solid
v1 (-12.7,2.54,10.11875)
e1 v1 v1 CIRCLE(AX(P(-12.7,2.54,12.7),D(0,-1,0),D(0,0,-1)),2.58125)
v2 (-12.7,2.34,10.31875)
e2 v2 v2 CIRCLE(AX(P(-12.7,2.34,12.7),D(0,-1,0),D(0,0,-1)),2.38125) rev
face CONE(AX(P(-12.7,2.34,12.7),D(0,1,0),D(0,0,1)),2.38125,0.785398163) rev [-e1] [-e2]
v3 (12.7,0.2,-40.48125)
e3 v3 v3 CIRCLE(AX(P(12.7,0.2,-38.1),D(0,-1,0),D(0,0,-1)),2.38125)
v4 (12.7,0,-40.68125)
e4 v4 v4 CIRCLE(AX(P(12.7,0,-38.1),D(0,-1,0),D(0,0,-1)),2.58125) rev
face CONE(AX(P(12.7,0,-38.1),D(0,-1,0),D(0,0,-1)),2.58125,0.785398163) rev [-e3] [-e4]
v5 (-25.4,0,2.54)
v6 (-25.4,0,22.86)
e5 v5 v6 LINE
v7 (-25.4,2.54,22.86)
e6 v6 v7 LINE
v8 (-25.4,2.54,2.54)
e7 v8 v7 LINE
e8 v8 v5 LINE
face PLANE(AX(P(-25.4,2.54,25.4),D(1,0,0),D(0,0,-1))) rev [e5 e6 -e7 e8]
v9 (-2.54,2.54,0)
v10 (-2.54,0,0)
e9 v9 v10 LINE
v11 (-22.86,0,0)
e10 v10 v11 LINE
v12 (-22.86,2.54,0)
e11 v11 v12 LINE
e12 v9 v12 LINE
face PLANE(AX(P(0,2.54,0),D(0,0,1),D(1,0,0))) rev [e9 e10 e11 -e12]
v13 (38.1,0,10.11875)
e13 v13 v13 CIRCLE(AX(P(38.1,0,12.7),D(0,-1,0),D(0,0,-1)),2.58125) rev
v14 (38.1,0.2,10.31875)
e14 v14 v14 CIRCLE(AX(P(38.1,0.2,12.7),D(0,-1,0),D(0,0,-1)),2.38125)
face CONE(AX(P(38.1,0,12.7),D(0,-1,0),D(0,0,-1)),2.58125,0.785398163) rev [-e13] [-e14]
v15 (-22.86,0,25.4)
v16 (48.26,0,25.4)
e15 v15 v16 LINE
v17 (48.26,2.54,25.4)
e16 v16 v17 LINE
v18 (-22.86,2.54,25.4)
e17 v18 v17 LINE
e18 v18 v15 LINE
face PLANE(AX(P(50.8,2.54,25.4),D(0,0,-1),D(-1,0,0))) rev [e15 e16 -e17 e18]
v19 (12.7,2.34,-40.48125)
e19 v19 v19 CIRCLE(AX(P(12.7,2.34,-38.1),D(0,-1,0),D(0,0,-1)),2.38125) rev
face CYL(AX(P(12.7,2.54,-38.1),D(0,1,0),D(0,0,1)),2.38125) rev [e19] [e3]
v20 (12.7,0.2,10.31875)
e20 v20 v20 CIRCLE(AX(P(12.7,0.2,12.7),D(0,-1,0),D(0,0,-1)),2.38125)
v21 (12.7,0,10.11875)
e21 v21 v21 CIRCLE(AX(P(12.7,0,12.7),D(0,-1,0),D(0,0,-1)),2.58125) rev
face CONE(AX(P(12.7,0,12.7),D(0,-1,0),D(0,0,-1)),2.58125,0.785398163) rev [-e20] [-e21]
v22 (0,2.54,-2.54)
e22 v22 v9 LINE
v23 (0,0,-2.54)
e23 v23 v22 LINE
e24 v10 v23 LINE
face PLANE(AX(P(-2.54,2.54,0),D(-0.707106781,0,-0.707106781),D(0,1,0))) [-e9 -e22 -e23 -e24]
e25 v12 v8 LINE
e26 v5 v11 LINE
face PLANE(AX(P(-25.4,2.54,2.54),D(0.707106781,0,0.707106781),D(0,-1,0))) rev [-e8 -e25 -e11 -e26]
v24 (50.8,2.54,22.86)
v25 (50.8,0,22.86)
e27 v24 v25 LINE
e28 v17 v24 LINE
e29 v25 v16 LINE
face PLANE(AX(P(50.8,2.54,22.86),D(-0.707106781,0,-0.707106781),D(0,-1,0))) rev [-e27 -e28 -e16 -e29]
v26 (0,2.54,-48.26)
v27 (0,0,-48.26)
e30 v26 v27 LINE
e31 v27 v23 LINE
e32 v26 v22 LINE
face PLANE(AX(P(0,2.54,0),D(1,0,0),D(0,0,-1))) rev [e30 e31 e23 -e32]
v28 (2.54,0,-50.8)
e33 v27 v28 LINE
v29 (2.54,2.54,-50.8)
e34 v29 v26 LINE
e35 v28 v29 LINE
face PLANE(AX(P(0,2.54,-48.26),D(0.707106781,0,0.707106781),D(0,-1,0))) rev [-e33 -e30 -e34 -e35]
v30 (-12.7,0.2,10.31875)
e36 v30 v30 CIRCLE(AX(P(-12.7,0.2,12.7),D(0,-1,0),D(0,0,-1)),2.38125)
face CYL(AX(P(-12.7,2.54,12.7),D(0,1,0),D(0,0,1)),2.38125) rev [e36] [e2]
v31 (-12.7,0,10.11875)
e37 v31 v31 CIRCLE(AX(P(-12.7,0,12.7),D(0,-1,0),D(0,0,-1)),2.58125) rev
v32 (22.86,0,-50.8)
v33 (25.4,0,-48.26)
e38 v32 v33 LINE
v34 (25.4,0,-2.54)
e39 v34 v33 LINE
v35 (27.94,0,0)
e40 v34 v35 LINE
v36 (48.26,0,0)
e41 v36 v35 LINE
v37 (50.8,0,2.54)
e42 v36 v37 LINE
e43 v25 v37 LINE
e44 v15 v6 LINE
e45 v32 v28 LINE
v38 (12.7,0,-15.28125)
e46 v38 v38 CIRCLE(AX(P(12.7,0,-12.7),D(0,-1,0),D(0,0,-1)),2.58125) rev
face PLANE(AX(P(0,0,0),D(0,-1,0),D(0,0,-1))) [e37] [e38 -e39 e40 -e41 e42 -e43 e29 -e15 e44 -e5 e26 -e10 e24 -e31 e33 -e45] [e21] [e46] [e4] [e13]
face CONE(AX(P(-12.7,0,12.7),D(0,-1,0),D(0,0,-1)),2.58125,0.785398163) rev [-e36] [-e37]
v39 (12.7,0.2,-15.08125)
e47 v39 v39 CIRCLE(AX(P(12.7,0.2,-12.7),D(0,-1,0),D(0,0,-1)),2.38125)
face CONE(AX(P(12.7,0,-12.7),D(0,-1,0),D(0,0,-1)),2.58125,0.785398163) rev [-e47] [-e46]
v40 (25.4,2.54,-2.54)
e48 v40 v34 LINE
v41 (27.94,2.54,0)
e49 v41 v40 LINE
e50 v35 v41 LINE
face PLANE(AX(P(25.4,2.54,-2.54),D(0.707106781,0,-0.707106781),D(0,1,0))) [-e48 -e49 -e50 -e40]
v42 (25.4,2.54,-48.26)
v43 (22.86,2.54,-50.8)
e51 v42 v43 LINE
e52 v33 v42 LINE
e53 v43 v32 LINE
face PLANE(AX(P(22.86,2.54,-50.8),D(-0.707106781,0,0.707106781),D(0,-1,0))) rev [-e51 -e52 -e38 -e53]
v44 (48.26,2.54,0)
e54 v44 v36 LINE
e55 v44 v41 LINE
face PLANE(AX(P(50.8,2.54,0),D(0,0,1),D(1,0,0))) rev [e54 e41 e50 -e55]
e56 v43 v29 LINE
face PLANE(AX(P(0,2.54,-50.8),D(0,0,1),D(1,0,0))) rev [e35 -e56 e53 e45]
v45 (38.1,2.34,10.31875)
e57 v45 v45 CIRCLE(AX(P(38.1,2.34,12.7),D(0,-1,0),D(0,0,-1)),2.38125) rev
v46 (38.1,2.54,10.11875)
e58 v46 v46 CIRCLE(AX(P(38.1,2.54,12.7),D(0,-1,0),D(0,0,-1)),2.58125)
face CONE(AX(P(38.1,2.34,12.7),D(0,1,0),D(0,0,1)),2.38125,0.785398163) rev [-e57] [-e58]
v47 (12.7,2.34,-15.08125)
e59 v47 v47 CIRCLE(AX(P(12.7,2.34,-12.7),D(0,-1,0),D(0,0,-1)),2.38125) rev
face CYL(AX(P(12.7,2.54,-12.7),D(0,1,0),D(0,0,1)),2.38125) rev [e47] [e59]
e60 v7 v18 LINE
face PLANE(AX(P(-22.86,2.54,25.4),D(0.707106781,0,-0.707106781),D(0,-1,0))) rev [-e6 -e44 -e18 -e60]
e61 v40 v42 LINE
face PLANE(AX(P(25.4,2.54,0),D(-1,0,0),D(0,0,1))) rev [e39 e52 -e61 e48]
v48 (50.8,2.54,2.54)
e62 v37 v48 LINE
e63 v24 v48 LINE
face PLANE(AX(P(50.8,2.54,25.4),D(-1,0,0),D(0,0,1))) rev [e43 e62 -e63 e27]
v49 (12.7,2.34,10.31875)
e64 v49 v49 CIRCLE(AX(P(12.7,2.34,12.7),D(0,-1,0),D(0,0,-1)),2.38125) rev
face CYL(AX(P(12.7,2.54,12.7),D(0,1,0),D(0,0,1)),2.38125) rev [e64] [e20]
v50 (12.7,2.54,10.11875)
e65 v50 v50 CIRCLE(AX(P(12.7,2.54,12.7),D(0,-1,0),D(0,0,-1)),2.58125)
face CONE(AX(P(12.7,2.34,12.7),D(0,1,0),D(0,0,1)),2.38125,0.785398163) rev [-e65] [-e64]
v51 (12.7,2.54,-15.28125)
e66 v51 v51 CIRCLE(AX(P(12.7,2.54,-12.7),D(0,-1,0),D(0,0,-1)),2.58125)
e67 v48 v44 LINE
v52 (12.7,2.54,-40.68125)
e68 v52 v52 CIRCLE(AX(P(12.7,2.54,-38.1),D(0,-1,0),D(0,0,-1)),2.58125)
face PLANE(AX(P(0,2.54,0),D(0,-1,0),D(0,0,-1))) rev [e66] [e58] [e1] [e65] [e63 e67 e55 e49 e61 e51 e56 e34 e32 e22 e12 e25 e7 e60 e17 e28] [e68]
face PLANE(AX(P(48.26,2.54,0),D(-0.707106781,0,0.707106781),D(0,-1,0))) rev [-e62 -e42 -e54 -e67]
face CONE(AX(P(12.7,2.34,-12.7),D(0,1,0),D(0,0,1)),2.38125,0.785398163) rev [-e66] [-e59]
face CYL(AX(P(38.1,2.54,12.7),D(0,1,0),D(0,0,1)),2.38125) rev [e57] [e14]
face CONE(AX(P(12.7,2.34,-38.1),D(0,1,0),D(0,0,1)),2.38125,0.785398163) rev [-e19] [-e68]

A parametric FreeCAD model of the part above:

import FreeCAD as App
import Part
import Sketcher

V = App.Vector
Q = App.Units.Quantity


def edges_at(feature, points):
    """Names of the edges that pass closest to the given points."""
    edges = feature.Shape.Edges
    near = lambda p: min(range(len(edges)), key=lambda i: edges[i].distToShape(Part.Vertex(*p))[0])
    return sorted({f"Edge{near(p) + 1}" for p in points})

doc = App.newDocument("Part")
body = doc.addObject("PartDesign::Body", "Body")

# Sketch on XZ plane
sketch1 = body.newObject("Sketcher::SketchObject", "Sketch")
sketch1.AttachmentSupport = (doc.getObject("XZ_Plane"), [""])
sketch1.MapMode = "FlatFace"
sketch1.addGeometry(Part.LineSegment(V(0, 0, 0), V(-25, 0, 0)), False)
sketch1.addGeometry(Part.LineSegment(V(-25, 0, 0), V(-25, 25, 0)), False)
sketch1.addGeometry(Part.LineSegment(V(-25, 25, 0), V(51, 25, 0)), False)
sketch1.addGeometry(Part.LineSegment(V(51, 25, 0), V(51, 0, 0)), False)
sketch1.addGeometry(Part.LineSegment(V(51, 0, 0), V(25, 0, 0)), False)
sketch1.addGeometry(Part.LineSegment(V(25, 0, 0), V(25, -51, 0)), False)
sketch1.addGeometry(Part.LineSegment(V(25, -51, 0), V(0, -51, 0)), False)
sketch1.addGeometry(Part.LineSegment(V(0, -51, 0), V(0, 0, 0)), False)
sketch1.addConstraint(Sketcher.Constraint("Coincident", 0, 2, 1, 1))
sketch1.addConstraint(Sketcher.Constraint("Coincident", 1, 2, 2, 1))
sketch1.addConstraint(Sketcher.Constraint("Coincident", 2, 2, 3, 1))
sketch1.addConstraint(Sketcher.Constraint("Coincident", 3, 2, 4, 1))
sketch1.addConstraint(Sketcher.Constraint("Coincident", 4, 2, 5, 1))
sketch1.addConstraint(Sketcher.Constraint("Coincident", 5, 2, 6, 1))
sketch1.addConstraint(Sketcher.Constraint("Coincident", 6, 2, 7, 1))
sketch1.addConstraint(Sketcher.Constraint("Coincident", 7, 2, 0, 1))
sketch1.addConstraint(Sketcher.Constraint("Horizontal", 0))
sketch1.addConstraint(Sketcher.Constraint("Vertical", 1))
sketch1.addConstraint(Sketcher.Constraint("Horizontal", 2))
sketch1.addConstraint(Sketcher.Constraint("Vertical", 3))
sketch1.addConstraint(Sketcher.Constraint("Horizontal", 4))
sketch1.addConstraint(Sketcher.Constraint("Vertical", 5))
sketch1.addConstraint(Sketcher.Constraint("Horizontal", 6))
sketch1.addConstraint(Sketcher.Constraint("Vertical", 7))
sketch1.addConstraint(Sketcher.Constraint("Coincident", 7, 2, -1, 1))
sketch1.addConstraint(Sketcher.Constraint("Symmetric", 0, 2, 4, 2, -1, 1))
sketch1.addConstraint(Sketcher.Constraint("Equal", 0, 4))
sketch1.addConstraint(Sketcher.Constraint("Equal", 6, 1))
sketch1.addConstraint(Sketcher.Constraint("DistanceX", 0, 2, 0, 1, Q("1 in")))
sketch1.addConstraint(Sketcher.Constraint("DistanceY", 5, 2, 5, 1, Q("2 in")))
pad1 = body.newObject("PartDesign::Pad", "Pad")
pad1.Profile = sketch1
pad1.Length = Q("0.1 in")
pad1.Reversed = True

# Sketch on XZ plane
sketch2 = body.newObject("Sketcher::SketchObject", "Sketch001")
sketch2.AttachmentSupport = (doc.getObject("XZ_Plane"), [""])
sketch2.MapMode = "FlatFace"
sketch2.AttachmentOffset = App.Placement(V(0, 0, -0.1 * 25.4), App.Rotation())
sketch2.addGeometry(Part.Circle(V(12.7, -38.1, 0), V(0, 0, 1), 2.4), False)
sketch2.addGeometry(Part.Circle(V(12.7, -12.7, 0), V(0, 0, 1), 2.4), False)
sketch2.addGeometry(Part.Circle(V(12.7, 12.7, 0), V(0, 0, 1), 2.4), False)
sketch2.addGeometry(Part.Circle(V(38.1, 12.7, 0), V(0, 0, 1), 2.4), False)
sketch2.addGeometry(Part.Circle(V(-12.7, 12.7, 0), V(0, 0, 1), 2.4), False)
sketch2.addConstraint(Sketcher.Constraint("Equal", 0, 1))
sketch2.addConstraint(Sketcher.Constraint("Equal", 1, 2))
sketch2.addConstraint(Sketcher.Constraint("Equal", 2, 3))
sketch2.addConstraint(Sketcher.Constraint("Equal", 3, 4))
sketch2.addConstraint(Sketcher.Constraint("Symmetric", 1, 3, 4, 3, -1, 1))
sketch2.addConstraint(Sketcher.Constraint("Symmetric", 2, 3, 4, 3, -2))
sketch2.addConstraint(Sketcher.Constraint("Horizontal", 2, 3, 3, 3))
sketch2.addConstraint(Sketcher.Constraint("Vertical", 0, 3, 1, 3))
sketch2.addConstraint(Sketcher.Constraint("Diameter", 0, Q("0.1875 in")))
sketch2.addConstraint(Sketcher.Constraint("DistanceY", 0, 3, 1, 3, Q("1 in")))
sketch2.addConstraint(Sketcher.Constraint("DistanceY", 1, 3, 2, 3, Q("1 in")))
sketch2.addConstraint(Sketcher.Constraint("DistanceX", 2, 3, 3, 3, Q("1 in")))
sketch2.addConstraint(Sketcher.Constraint("DistanceX", 4, 3, 2, 3, Q("1 in")))
doc.recompute()
hole = body.newObject("PartDesign::Hole", "Hole")
hole.Profile = sketch2
hole.ThreadType = "None"
hole.Diameter = Q("0.1875 in")
hole.DepthType = "ThroughAll"
hole.Reversed = True
doc.recompute()

chamfer = body.newObject("PartDesign::Chamfer", "Chamfer")
chamfer.Base = (hole, edges_at(hole, [
    (0, 1.27, -50.8),
    (25.4, 1.27, -50.8),
    (25.4, 1.27, 0),
    (50.8, 1.27, 0),
    (50.8, 1.27, 25.4),
    (-25.4, 1.27, 25.4),
    (-25.4, 1.27, 0),
    (0, 1.27, 0),
]))
chamfer.Size = Q("0.1 in")
doc.recompute()

chamfer2 = body.newObject("PartDesign::Chamfer", "Chamfer001")
chamfer2.Base = (chamfer, edges_at(chamfer, [
    (-10.319, 2.54, 12.7),
    (-10.319, 0, 12.7),
    (40.481, 2.54, 12.7),
    (40.481, 0, 12.7),
    (15.081, 2.54, 12.7),
    (15.081, 0, 12.7),
    (15.081, 2.54, -12.7),
    (15.081, 0, -12.7),
    (15.081, 2.54, -38.1),
    (15.081, 0, -38.1),
]))
chamfer2.Size = 0.2

doc.recompute()
